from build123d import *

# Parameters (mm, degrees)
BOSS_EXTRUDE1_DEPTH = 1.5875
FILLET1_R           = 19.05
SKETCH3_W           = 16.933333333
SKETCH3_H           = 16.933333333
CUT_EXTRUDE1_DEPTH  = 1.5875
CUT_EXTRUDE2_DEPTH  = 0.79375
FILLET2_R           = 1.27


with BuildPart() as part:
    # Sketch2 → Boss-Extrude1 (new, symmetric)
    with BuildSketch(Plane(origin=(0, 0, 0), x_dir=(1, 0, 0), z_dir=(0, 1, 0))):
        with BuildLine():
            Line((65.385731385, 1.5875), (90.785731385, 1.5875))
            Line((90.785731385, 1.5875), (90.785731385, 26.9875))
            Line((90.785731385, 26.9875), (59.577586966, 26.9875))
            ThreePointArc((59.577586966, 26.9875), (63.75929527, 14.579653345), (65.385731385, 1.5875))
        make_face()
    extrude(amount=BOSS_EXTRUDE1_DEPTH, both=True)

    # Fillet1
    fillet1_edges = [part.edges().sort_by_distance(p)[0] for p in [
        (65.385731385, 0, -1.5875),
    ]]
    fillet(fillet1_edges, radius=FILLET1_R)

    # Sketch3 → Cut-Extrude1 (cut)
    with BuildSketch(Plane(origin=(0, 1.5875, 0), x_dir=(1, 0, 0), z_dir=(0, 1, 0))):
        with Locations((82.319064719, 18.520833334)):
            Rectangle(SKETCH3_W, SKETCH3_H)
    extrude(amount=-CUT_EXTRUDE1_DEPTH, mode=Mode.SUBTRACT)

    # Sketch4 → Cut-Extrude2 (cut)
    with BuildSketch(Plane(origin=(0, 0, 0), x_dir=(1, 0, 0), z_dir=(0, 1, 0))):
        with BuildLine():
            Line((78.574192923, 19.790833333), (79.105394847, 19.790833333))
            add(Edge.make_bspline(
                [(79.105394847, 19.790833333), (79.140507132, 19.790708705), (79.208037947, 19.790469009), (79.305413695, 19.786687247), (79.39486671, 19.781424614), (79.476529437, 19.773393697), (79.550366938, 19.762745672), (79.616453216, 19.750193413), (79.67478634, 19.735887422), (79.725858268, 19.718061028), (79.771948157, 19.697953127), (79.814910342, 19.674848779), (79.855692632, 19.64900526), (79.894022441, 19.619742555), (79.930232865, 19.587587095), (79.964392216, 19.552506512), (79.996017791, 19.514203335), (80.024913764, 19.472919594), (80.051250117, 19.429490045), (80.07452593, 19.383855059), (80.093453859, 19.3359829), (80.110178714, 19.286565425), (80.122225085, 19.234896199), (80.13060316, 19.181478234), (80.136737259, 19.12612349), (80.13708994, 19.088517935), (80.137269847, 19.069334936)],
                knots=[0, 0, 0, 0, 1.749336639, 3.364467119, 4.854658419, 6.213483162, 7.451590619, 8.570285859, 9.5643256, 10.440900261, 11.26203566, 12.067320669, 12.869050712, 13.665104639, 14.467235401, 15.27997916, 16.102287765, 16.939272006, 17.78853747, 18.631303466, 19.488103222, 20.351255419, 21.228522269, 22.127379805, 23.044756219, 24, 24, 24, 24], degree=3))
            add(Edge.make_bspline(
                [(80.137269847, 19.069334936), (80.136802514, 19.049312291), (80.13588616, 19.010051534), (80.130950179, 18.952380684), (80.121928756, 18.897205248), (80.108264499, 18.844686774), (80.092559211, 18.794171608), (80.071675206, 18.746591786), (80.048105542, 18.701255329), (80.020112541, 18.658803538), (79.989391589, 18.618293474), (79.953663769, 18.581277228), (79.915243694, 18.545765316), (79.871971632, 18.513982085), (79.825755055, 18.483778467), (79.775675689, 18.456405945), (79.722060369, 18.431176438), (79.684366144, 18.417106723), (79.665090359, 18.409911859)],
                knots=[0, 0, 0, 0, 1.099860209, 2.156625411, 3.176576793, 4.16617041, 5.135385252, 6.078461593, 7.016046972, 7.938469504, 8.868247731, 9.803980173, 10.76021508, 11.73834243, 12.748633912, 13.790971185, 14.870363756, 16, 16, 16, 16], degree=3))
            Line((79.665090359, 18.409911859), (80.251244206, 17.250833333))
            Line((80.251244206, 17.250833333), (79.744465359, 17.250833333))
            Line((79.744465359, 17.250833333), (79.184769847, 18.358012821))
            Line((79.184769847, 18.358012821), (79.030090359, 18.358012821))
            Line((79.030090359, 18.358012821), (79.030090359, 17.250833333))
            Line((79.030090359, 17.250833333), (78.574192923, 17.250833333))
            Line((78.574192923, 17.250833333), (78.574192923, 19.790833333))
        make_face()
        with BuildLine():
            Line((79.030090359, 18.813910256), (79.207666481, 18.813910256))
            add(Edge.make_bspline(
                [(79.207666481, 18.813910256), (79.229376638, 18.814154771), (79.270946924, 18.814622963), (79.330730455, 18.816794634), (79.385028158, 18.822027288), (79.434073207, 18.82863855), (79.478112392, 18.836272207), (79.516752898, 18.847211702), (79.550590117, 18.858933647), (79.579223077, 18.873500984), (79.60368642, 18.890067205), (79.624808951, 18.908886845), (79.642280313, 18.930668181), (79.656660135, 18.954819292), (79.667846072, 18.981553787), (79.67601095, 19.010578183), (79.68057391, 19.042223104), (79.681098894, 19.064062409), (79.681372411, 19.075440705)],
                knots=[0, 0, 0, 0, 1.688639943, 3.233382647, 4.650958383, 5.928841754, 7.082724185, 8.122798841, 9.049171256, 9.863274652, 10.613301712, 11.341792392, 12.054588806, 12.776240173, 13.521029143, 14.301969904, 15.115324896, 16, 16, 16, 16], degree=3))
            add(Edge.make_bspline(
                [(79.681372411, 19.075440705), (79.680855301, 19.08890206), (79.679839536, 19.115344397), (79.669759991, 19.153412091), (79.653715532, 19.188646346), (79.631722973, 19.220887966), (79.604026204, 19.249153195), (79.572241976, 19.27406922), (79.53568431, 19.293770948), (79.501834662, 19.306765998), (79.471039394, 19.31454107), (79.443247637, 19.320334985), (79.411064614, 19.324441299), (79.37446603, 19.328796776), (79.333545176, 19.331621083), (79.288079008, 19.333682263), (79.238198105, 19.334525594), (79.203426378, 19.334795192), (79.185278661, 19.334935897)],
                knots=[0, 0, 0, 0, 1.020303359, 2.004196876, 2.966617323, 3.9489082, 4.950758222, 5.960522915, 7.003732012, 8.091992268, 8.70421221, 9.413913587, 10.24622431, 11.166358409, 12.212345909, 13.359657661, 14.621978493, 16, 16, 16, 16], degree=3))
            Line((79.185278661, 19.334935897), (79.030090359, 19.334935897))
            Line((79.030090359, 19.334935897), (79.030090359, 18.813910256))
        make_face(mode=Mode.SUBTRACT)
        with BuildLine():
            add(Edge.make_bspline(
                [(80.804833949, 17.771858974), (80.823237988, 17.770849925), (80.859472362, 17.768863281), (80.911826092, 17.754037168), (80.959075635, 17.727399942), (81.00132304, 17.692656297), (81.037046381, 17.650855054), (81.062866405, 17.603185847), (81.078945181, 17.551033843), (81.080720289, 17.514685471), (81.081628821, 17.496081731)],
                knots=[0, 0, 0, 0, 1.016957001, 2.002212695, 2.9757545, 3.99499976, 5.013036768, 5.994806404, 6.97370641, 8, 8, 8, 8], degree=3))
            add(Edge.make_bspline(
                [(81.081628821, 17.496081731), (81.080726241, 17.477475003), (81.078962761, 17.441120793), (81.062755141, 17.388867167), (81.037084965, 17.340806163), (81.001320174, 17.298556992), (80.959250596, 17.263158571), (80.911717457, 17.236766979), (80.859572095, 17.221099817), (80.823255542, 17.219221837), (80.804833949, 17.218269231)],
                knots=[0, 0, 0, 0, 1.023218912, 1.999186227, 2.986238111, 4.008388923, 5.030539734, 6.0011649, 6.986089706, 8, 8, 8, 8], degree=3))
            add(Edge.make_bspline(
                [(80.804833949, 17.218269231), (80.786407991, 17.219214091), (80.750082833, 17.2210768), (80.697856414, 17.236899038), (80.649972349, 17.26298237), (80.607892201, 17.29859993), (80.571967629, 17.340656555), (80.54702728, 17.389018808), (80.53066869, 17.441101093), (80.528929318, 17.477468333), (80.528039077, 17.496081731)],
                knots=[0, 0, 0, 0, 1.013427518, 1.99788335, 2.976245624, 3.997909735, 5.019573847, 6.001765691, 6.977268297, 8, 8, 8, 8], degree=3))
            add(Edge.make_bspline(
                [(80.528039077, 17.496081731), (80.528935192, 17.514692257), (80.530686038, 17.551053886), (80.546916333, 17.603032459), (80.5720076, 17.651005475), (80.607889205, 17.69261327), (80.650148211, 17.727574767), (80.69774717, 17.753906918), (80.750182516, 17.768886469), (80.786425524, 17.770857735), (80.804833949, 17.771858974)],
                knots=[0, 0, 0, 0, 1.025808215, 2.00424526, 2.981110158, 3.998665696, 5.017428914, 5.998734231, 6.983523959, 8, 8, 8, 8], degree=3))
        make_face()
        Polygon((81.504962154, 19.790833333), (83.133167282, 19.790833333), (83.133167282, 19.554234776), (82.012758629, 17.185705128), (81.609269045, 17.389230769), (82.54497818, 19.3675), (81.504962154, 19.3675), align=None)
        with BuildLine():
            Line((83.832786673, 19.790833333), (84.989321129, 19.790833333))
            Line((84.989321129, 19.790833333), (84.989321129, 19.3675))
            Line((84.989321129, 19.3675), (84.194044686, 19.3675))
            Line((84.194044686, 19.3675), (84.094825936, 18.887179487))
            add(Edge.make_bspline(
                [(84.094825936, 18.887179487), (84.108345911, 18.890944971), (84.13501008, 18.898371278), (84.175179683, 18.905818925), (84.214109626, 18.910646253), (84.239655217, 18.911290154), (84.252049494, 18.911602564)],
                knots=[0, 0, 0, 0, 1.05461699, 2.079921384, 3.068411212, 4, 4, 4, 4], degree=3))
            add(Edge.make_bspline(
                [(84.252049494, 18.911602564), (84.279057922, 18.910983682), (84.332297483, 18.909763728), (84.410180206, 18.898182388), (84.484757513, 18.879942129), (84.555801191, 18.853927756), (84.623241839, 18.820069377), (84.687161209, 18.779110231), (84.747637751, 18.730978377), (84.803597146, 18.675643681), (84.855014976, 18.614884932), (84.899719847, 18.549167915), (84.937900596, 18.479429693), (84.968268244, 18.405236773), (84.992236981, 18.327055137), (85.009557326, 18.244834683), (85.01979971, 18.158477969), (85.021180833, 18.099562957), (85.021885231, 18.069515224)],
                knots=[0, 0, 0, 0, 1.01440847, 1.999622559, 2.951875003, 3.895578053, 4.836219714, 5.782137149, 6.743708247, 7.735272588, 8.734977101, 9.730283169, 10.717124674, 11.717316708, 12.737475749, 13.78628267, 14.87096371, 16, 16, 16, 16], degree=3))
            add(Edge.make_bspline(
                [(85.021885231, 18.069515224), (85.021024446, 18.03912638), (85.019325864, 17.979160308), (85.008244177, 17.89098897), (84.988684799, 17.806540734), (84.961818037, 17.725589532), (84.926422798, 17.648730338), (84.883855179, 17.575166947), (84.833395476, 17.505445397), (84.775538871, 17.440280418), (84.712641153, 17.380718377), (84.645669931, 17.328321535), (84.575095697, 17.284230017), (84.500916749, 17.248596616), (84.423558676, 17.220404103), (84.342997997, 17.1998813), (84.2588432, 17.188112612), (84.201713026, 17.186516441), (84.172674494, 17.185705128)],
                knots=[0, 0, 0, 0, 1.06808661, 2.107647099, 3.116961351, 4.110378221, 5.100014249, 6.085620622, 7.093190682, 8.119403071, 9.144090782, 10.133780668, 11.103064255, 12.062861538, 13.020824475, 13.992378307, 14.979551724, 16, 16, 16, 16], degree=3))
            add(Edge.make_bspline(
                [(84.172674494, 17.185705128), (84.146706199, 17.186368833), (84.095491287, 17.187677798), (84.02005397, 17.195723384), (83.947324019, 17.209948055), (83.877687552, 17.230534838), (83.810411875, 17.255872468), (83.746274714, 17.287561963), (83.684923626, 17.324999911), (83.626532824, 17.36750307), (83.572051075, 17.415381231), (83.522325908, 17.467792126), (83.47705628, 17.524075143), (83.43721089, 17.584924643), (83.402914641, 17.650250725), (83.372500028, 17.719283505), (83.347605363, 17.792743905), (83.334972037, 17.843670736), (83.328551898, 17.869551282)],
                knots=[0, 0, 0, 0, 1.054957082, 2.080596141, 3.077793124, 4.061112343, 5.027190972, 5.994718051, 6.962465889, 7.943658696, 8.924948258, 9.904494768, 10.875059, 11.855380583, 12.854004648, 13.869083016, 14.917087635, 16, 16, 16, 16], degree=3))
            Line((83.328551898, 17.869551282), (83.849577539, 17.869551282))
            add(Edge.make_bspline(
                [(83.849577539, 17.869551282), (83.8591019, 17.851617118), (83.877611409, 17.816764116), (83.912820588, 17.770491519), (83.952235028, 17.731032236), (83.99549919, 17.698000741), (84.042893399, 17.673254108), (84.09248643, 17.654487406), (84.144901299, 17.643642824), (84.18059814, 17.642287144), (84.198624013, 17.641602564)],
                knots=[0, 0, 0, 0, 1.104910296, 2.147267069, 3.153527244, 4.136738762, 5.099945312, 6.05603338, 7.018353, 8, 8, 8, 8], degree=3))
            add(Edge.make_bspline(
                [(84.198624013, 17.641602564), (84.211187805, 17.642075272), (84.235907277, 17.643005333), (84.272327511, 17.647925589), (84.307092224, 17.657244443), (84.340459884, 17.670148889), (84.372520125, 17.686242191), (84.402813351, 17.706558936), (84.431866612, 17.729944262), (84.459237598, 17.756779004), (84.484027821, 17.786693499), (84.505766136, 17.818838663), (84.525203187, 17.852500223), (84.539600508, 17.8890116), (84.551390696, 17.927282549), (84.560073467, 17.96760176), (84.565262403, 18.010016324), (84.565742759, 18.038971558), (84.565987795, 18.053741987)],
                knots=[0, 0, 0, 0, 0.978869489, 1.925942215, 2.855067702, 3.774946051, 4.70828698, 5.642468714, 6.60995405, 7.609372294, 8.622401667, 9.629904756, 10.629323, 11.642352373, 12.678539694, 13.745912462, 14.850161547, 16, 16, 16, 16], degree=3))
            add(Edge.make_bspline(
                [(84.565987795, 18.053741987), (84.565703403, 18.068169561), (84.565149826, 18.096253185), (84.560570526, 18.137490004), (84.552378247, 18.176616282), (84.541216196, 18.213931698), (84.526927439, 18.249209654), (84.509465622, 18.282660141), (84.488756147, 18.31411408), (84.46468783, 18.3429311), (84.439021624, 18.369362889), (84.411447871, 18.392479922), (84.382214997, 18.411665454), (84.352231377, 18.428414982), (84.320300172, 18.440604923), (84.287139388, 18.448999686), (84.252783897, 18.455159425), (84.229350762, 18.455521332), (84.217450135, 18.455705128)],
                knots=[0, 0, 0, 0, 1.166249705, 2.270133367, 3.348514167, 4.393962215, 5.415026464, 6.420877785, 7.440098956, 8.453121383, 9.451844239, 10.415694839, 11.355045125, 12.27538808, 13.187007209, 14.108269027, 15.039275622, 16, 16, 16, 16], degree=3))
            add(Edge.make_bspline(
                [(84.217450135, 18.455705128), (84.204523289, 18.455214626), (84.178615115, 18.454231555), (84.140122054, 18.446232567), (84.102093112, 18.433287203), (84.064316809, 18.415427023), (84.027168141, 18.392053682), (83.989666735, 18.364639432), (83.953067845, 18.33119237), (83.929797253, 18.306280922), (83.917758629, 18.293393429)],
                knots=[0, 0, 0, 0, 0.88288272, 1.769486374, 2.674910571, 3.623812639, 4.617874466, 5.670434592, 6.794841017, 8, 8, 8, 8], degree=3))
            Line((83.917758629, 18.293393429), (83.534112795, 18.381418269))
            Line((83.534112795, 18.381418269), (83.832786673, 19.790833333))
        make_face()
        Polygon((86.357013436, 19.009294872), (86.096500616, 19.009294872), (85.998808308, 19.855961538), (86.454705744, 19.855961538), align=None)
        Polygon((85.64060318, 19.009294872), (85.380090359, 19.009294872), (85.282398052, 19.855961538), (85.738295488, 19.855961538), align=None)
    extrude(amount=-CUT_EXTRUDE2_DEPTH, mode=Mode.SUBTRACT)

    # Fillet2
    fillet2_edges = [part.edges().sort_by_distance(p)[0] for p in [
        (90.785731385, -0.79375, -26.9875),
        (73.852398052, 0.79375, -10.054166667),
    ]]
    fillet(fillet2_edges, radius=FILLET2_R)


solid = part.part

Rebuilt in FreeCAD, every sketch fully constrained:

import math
import FreeCAD as App
import Part
import Sketcher
from FreeCAD import Vector
Q = App.Units.Quantity


def edges_at(feature, points):
    """Names of the edges that pass closest to the given points."""
    edges = feature.Shape.Edges
    near = lambda p: min(range(len(edges)), key=lambda i: edges[i].distToShape(Part.Vertex(*p))[0])
    return sorted({f"Edge{near(p) + 1}" for p in points})


def add_polygon(sketch, points):
    """Adds a closed chain of lines whose ends are joined by coincident constraints."""
    first, n = sketch.GeometryCount, len(points)
    for a, b in zip(points, points[1:] + points[:1]):
        sketch.addGeometry(Part.LineSegment(App.Vector(*a, 0), App.Vector(*b, 0)), False)
    for i in range(n):
        sketch.addConstraint(Sketcher.Constraint("Coincident", first + i, 2, first + (i + 1) % n, 1))

doc = App.newDocument("Part")
params = doc.addObject("Spreadsheet::Sheet", "Params")
for row, (alias, value) in enumerate([
    ("sketch1_width", "1 in"),
    ("sketch1_radius", "2.575 in"),
    ("pad1_length", "0.125 in"),
    ("fillet_radius", "0.75 in"),
    ("pocket1_length", "0.0625 in"),
    ("sketch3_height", "0.1 in"),
    ("pocket2_length", "0.03125 in"),
    ("fillet2_radius", "0.05 in"),
], start=1):
    params.set(f"A{row}", alias)
    params.set(f"B{row}", "=" + value)
    params.setAlias(f"B{row}", alias)

body = doc.addObject("PartDesign::Body", "Body")

sketch1 = body.newObject("Sketcher::SketchObject", "Sketch")
sketch1.AttachmentSupport = (doc.getObject("XZ_Plane"), [""])
sketch1.MapMode = "FlatFace"
sketch1.addGeometry(Part.LineSegment(Vector(65.385731, -1.5875, 0), Vector(90.785731, -1.5875, 0)), False)
sketch1.addGeometry(Part.LineSegment(Vector(90.785731, -1.5875, 0), Vector(90.785731, -26.9875, 0)), False)
sketch1.addGeometry(Part.LineSegment(Vector(90.785731, -26.9875, 0), Vector(59.577587, -26.9875, 0)), False)
sketch1.addGeometry(Part.ArcOfCircle(Part.Circle(Vector(0, 0, 0), Vector(0, 0, 1), 65.405), math.radians(-24.369611), math.radians(-1.390811)), False)
sketch1.addConstraint(Sketcher.Constraint("Coincident", 0, 2, 1, 1))
sketch1.addConstraint(Sketcher.Constraint("Coincident", 1, 2, 2, 1))
sketch1.addConstraint(Sketcher.Constraint("Coincident", 2, 2, 3, 1))
sketch1.addConstraint(Sketcher.Constraint("Coincident", 3, 2, 0, 1))
sketch1.addConstraint(Sketcher.Constraint("Horizontal", 0))
sketch1.addConstraint(Sketcher.Constraint("Vertical", 1))
sketch1.addConstraint(Sketcher.Constraint("Horizontal", 2))
sketch1.addConstraint(Sketcher.Constraint("Coincident", 3, 3, -1, 1))
sketch1.addConstraint(Sketcher.Constraint("Equal", 0, 1))
sketch1.addConstraint(Sketcher.Constraint("DistanceX", 0, 1, 0, 2, Q("1 in")))
sketch1.addConstraint(Sketcher.Constraint("Radius", 3, Q("2.575 in")))
sketch1.addConstraint(Sketcher.Constraint("DistanceY", 0, 2, -1, 1, Q("0.0625 in")))
sketch1.setExpression("Constraints[9]", "Params.sketch1_width")
sketch1.setExpression("Constraints[10]", "Params.sketch1_radius")
pad1 = body.newObject("PartDesign::Pad", "Pad")
pad1.Profile = sketch1
pad1.setExpression("Length", "Params.pad1_length")
pad1.Midplane = True
doc.recompute()

fillet = body.newObject("PartDesign::Fillet", "Fillet")
fillet.Base = (pad1, edges_at(pad1, [(65.386, 0, -1.587)]))
fillet.setExpression("Radius", "Params.fillet_radius")

sketch2 = body.newObject("Sketcher::SketchObject", "Sketch001")
sketch2.AttachmentSupport = (doc.getObject("XZ_Plane"), [""])
sketch2.MapMode = "FlatFace"
sketch2.AttachmentOffset = App.Placement(Vector(0, 0, -0.0625 * 25.4), App.Rotation())
add_polygon(sketch2, [(73.852398, -26.9875), (73.852398, -10.054167), (90.785731, -10.054167), (90.785731, -26.9875)])
sketch2.addConstraint(Sketcher.Constraint("Vertical", 0))
sketch2.addConstraint(Sketcher.Constraint("Horizontal", 1))
sketch2.addConstraint(Sketcher.Constraint("Vertical", 2))
sketch2.addConstraint(Sketcher.Constraint("Horizontal", 3))
sketch2.addConstraint(Sketcher.Constraint("Equal", 3, 0))
sketch2.addConstraint(Sketcher.Constraint("DistanceY", 2, 2, -1, 1, Q("1.0625 in")))
sketch2.addConstraint(Sketcher.Constraint("DistanceX", -1, 1, 0, 2, 73.852398))
sketch2.addConstraint(Sketcher.Constraint("DistanceX", 1, 1, 1, 2, 16.933333))
pocket1 = body.newObject("PartDesign::Pocket", "Pocket")
pocket1.Profile = sketch2
pocket1.setExpression("Length", "Params.pocket1_length")
pocket1.Reversed = True

sketch3 = body.newObject("Sketcher::SketchObject", "Sketch002")
sketch3.AttachmentSupport = (doc.getObject("XZ_Plane"), [""])
sketch3.MapMode = "FlatFace"
sketch3.addGeometry(Part.LineSegment(Vector(79.105395, -19.790833, 0), Vector(78.574193, -19.790833, 0)), False)
sketch3.addGeometry(Part.LineSegment(Vector(78.574193, -19.790833, 0), Vector(78.574193, -17.250833, 0)), False)
sketch3.addGeometry(Part.LineSegment(Vector(78.574193, -17.250833, 0), Vector(79.03009, -17.250833, 0)), False)
sketch3.addGeometry(Part.LineSegment(Vector(79.03009, -17.250833, 0), Vector(79.03009, -18.358013, 0)), False)
sketch3.addGeometry(Part.LineSegment(Vector(79.03009, -18.358013, 0), Vector(79.18477, -18.358013, 0)), False)
sketch3.addGeometry(Part.LineSegment(Vector(79.18477, -18.358013, 0), Vector(79.744465, -17.250833, 0)), False)
sketch3.addGeometry(Part.LineSegment(Vector(79.744465, -17.250833, 0), Vector(80.251244, -17.250833, 0)), False)
sketch3.addGeometry(Part.LineSegment(Vector(80.251244, -17.250833, 0), Vector(79.66509, -18.409912, 0)), False)
sketch3.addGeometry(Part.BSplineCurve([Vector(80.13727, -19.069335, 0), Vector(80.136803, -19.049312, 0), Vector(80.135886, -19.010052, 0), Vector(80.13095, -18.952381, 0), Vector(80.121929, -18.897205, 0), Vector(80.108264, -18.844687, 0), Vector(80.092559, -18.794172, 0), Vector(80.071675, -18.746592, 0), Vector(80.048106, -18.701255, 0), Vector(80.020113, -18.658804, 0), Vector(79.989392, -18.618293, 0), Vector(79.953664, -18.581277, 0), Vector(79.915244, -18.545765, 0), Vector(79.871972, -18.513982, 0), Vector(79.825755, -18.483778, 0), Vector(79.775676, -18.456406, 0), Vector(79.72206, -18.431176, 0), Vector(79.684366, -18.417107, 0), Vector(79.66509, -18.409912, 0)], [4, 1, 1, 1, 1, 1, 1, 1, 1, 1, 1, 1, 1, 1, 1, 1, 4], [0, 1.099860209, 2.156625411, 3.176576793, 4.16617041, 5.135385252, 6.078461593, 7.016046972, 7.938469504, 8.868247731, 9.803980173, 10.76021508, 11.73834243, 12.748633912, 13.790971185, 14.870363756, 16], False, 3, [1, 1, 1, 1, 1, 1, 1, 1, 1, 1, 1, 1, 1, 1, 1, 1, 1, 1, 1], False), False)
sketch3.addGeometry(Part.BSplineCurve([Vector(79.105395, -19.790833, 0), Vector(79.140507, -19.790709, 0), Vector(79.208038, -19.790469, 0), Vector(79.305414, -19.786687, 0), Vector(79.394867, -19.781425, 0), Vector(79.476529, -19.773394, 0), Vector(79.550367, -19.762746, 0), Vector(79.616453, -19.750193, 0), Vector(79.674786, -19.735887, 0), Vector(79.725858, -19.718061, 0), Vector(79.771948, -19.697953, 0), Vector(79.81491, -19.674849, 0), Vector(79.855693, -19.649005, 0), Vector(79.894022, -19.619743, 0), Vector(79.930233, -19.587587, 0), Vector(79.964392, -19.552507, 0), Vector(79.996018, -19.514203, 0), Vector(80.024914, -19.47292, 0), Vector(80.05125, -19.42949, 0), Vector(80.074526, -19.383855, 0), Vector(80.093454, -19.335983, 0), Vector(80.110179, -19.286565, 0), Vector(80.122225, -19.234896, 0), Vector(80.130603, -19.181478, 0), Vector(80.136737, -19.126123, 0), Vector(80.13709, -19.088518, 0), Vector(80.13727, -19.069335, 0)], [4, 1, 1, 1, 1, 1, 1, 1, 1, 1, 1, 1, 1, 1, 1, 1, 1, 1, 1, 1, 1, 1, 1, 1, 4], [0, 1.749336639, 3.364467119, 4.854658419, 6.213483162, 7.451590619, 8.570285859, 9.5643256, 10.440900261, 11.26203566, 12.067320669, 12.869050712, 13.665104639, 14.467235401, 15.27997916, 16.102287765, 16.939272006, 17.78853747, 18.631303466, 19.488103222, 20.351255419, 21.228522269, 22.127379805, 23.044756219, 24], False, 3, [1, 1, 1, 1, 1, 1, 1, 1, 1, 1, 1, 1, 1, 1, 1, 1, 1, 1, 1, 1, 1, 1, 1, 1, 1, 1, 1], False), False)
sketch3.addGeometry(Part.LineSegment(Vector(79.03009, -18.81391, 0), Vector(79.03009, -19.334936, 0)), False)
sketch3.addGeometry(Part.LineSegment(Vector(79.03009, -19.334936, 0), Vector(79.185279, -19.334936, 0)), False)
sketch3.addGeometry(Part.BSplineCurve([Vector(79.681372, -19.075441, 0), Vector(79.680855, -19.088902, 0), Vector(79.67984, -19.115344, 0), Vector(79.66976, -19.153412, 0), Vector(79.653716, -19.188646, 0), Vector(79.631723, -19.220888, 0), Vector(79.604026, -19.249153, 0), Vector(79.572242, -19.274069, 0), Vector(79.535684, -19.293771, 0), Vector(79.501835, -19.306766, 0), Vector(79.471039, -19.314541, 0), Vector(79.443248, -19.320335, 0), Vector(79.411065, -19.324441, 0), Vector(79.374466, -19.328797, 0), Vector(79.333545, -19.331621, 0), Vector(79.288079, -19.333682, 0), Vector(79.238198, -19.334526, 0), Vector(79.203426, -19.334795, 0), Vector(79.185279, -19.334936, 0)], [4, 1, 1, 1, 1, 1, 1, 1, 1, 1, 1, 1, 1, 1, 1, 1, 4], [0, 1.020303359, 2.004196876, 2.966617323, 3.9489082, 4.950758222, 5.960522915, 7.003732012, 8.091992268, 8.70421221, 9.413913587, 10.24622431, 11.166358409, 12.212345909, 13.359657661, 14.621978493, 16], False, 3, [1, 1, 1, 1, 1, 1, 1, 1, 1, 1, 1, 1, 1, 1, 1, 1, 1, 1, 1], False), False)
sketch3.addGeometry(Part.BSplineCurve([Vector(79.207666, -18.81391, 0), Vector(79.229377, -18.814155, 0), Vector(79.270947, -18.814623, 0), Vector(79.33073, -18.816795, 0), Vector(79.385028, -18.822027, 0), Vector(79.434073, -18.828639, 0), Vector(79.478112, -18.836272, 0), Vector(79.516753, -18.847212, 0), Vector(79.55059, -18.858934, 0), Vector(79.579223, -18.873501, 0), Vector(79.603686, -18.890067, 0), Vector(79.624809, -18.908887, 0), Vector(79.64228, -18.930668, 0), Vector(79.65666, -18.954819, 0), Vector(79.667846, -18.981554, 0), Vector(79.676011, -19.010578, 0), Vector(79.680574, -19.042223, 0), Vector(79.681099, -19.064062, 0), Vector(79.681372, -19.075441, 0)], [4, 1, 1, 1, 1, 1, 1, 1, 1, 1, 1, 1, 1, 1, 1, 1, 4], [0, 1.688639943, 3.233382647, 4.650958383, 5.928841754, 7.082724185, 8.122798841, 9.049171256, 9.863274652, 10.613301712, 11.341792392, 12.054588806, 12.776240173, 13.521029143, 14.301969904, 15.115324896, 16], False, 3, [1, 1, 1, 1, 1, 1, 1, 1, 1, 1, 1, 1, 1, 1, 1, 1, 1, 1, 1], False), False)
sketch3.addGeometry(Part.LineSegment(Vector(79.207666, -18.81391, 0), Vector(79.03009, -18.81391, 0)), False)
sketch3.addGeometry(Part.BSplineCurve([Vector(80.804834, -17.771859, 0), Vector(80.823238, -17.77085, 0), Vector(80.859472, -17.768863, 0), Vector(80.911826, -17.754037, 0), Vector(80.959076, -17.7274, 0), Vector(81.001323, -17.692656, 0), Vector(81.037046, -17.650855, 0), Vector(81.062866, -17.603186, 0), Vector(81.078945, -17.551034, 0), Vector(81.08072, -17.514685, 0), Vector(81.081629, -17.496082, 0)], [4, 1, 1, 1, 1, 1, 1, 1, 4], [0, 1.016957001, 2.002212695, 2.9757545, 3.99499976, 5.013036768, 5.994806404, 6.97370641, 8], False, 3, [1, 1, 1, 1, 1, 1, 1, 1, 1, 1, 1], False), False)
sketch3.addGeometry(Part.BSplineCurve([Vector(80.528039, -17.496082, 0), Vector(80.528935, -17.514692, 0), Vector(80.530686, -17.551054, 0), Vector(80.546916, -17.603032, 0), Vector(80.572008, -17.651005, 0), Vector(80.607889, -17.692613, 0), Vector(80.650148, -17.727575, 0), Vector(80.697747, -17.753907, 0), Vector(80.750183, -17.768886, 0), Vector(80.786426, -17.770858, 0), Vector(80.804834, -17.771859, 0)], [4, 1, 1, 1, 1, 1, 1, 1, 4], [0, 1.025808215, 2.00424526, 2.981110158, 3.998665696, 5.017428914, 5.998734231, 6.983523959, 8], False, 3, [1, 1, 1, 1, 1, 1, 1, 1, 1, 1, 1], False), False)
sketch3.addGeometry(Part.BSplineCurve([Vector(80.804834, -17.218269, 0), Vector(80.786408, -17.219214, 0), Vector(80.750083, -17.221077, 0), Vector(80.697856, -17.236899, 0), Vector(80.649972, -17.262982, 0), Vector(80.607892, -17.2986, 0), Vector(80.571968, -17.340657, 0), Vector(80.547027, -17.389019, 0), Vector(80.530669, -17.441101, 0), Vector(80.528929, -17.477468, 0), Vector(80.528039, -17.496082, 0)], [4, 1, 1, 1, 1, 1, 1, 1, 4], [0, 1.013427518, 1.99788335, 2.976245624, 3.997909735, 5.019573847, 6.001765691, 6.977268297, 8], False, 3, [1, 1, 1, 1, 1, 1, 1, 1, 1, 1, 1], False), False)
sketch3.addGeometry(Part.BSplineCurve([Vector(81.081629, -17.496082, 0), Vector(81.080726, -17.477475, 0), Vector(81.078963, -17.441121, 0), Vector(81.062755, -17.388867, 0), Vector(81.037085, -17.340806, 0), Vector(81.00132, -17.298557, 0), Vector(80.959251, -17.263159, 0), Vector(80.911717, -17.236767, 0), Vector(80.859572, -17.2211, 0), Vector(80.823256, -17.219222, 0), Vector(80.804834, -17.218269, 0)], [4, 1, 1, 1, 1, 1, 1, 1, 4], [0, 1.023218912, 1.999186227, 2.986238111, 4.008388923, 5.030539734, 6.0011649, 6.986089706, 8], False, 3, [1, 1, 1, 1, 1, 1, 1, 1, 1, 1, 1], False), False)
add_polygon(sketch3, [(83.133167, -19.790833), (81.504962, -19.790833), (81.504962, -19.3675), (82.544978, -19.3675), (81.609269, -17.389231), (82.012759, -17.185705), (83.133167, -19.554235)])
sketch3.addGeometry(Part.LineSegment(Vector(84.989321, -19.790833, 0), Vector(83.832787, -19.790833, 0)), False)
sketch3.addGeometry(Part.LineSegment(Vector(83.832787, -19.790833, 0), Vector(83.534113, -18.381418, 0)), False)
sketch3.addGeometry(Part.LineSegment(Vector(83.534113, -18.381418, 0), Vector(83.917759, -18.293393, 0)), False)
sketch3.addGeometry(Part.BSplineCurve([Vector(84.21745, -18.455705, 0), Vector(84.204523, -18.455215, 0), Vector(84.178615, -18.454232, 0), Vector(84.140122, -18.446233, 0), Vector(84.102093, -18.433287, 0), Vector(84.064317, -18.415427, 0), Vector(84.027168, -18.392054, 0), Vector(83.989667, -18.364639, 0), Vector(83.953068, -18.331192, 0), Vector(83.929797, -18.306281, 0), Vector(83.917759, -18.293393, 0)], [4, 1, 1, 1, 1, 1, 1, 1, 4], [0, 0.88288272, 1.769486374, 2.674910571, 3.623812639, 4.617874466, 5.670434592, 6.794841017, 8], False, 3, [1, 1, 1, 1, 1, 1, 1, 1, 1, 1, 1], False), False)
sketch3.addGeometry(Part.BSplineCurve([Vector(84.565988, -18.053742, 0), Vector(84.565703, -18.06817, 0), Vector(84.56515, -18.096253, 0), Vector(84.560571, -18.13749, 0), Vector(84.552378, -18.176616, 0), Vector(84.541216, -18.213932, 0), Vector(84.526927, -18.24921, 0), Vector(84.509466, -18.28266, 0), Vector(84.488756, -18.314114, 0), Vector(84.464688, -18.342931, 0), Vector(84.439022, -18.369363, 0), Vector(84.411448, -18.39248, 0), Vector(84.382215, -18.411665, 0), Vector(84.352231, -18.428415, 0), Vector(84.3203, -18.440605, 0), Vector(84.287139, -18.449, 0), Vector(84.252784, -18.455159, 0), Vector(84.229351, -18.455521, 0), Vector(84.21745, -18.455705, 0)], [4, 1, 1, 1, 1, 1, 1, 1, 1, 1, 1, 1, 1, 1, 1, 1, 4], [0, 1.166249705, 2.270133367, 3.348514167, 4.393962215, 5.415026464, 6.420877785, 7.440098956, 8.453121383, 9.451844239, 10.415694839, 11.355045125, 12.27538808, 13.187007209, 14.108269027, 15.039275622, 16], False, 3, [1, 1, 1, 1, 1, 1, 1, 1, 1, 1, 1, 1, 1, 1, 1, 1, 1, 1, 1], False), False)
sketch3.addGeometry(Part.BSplineCurve([Vector(84.198624, -17.641603, 0), Vector(84.211188, -17.642075, 0), Vector(84.235907, -17.643005, 0), Vector(84.272328, -17.647926, 0), Vector(84.307092, -17.657244, 0), Vector(84.34046, -17.670149, 0), Vector(84.37252, -17.686242, 0), Vector(84.402813, -17.706559, 0), Vector(84.431867, -17.729944, 0), Vector(84.459238, -17.756779, 0), Vector(84.484028, -17.786693, 0), Vector(84.505766, -17.818839, 0), Vector(84.525203, -17.8525, 0), Vector(84.539601, -17.889012, 0), Vector(84.551391, -17.927283, 0), Vector(84.560073, -17.967602, 0), Vector(84.565262, -18.010016, 0), Vector(84.565743, -18.038972, 0), Vector(84.565988, -18.053742, 0)], [4, 1, 1, 1, 1, 1, 1, 1, 1, 1, 1, 1, 1, 1, 1, 1, 4], [0, 0.978869489, 1.925942215, 2.855067702, 3.774946051, 4.70828698, 5.642468714, 6.60995405, 7.609372294, 8.622401667, 9.629904756, 10.629323, 11.642352373, 12.678539694, 13.745912462, 14.850161547, 16], False, 3, [1, 1, 1, 1, 1, 1, 1, 1, 1, 1, 1, 1, 1, 1, 1, 1, 1, 1, 1], False), False)
sketch3.addGeometry(Part.BSplineCurve([Vector(83.849578, -17.869551, 0), Vector(83.859102, -17.851617, 0), Vector(83.877611, -17.816764, 0), Vector(83.912821, -17.770492, 0), Vector(83.952235, -17.731032, 0), Vector(83.995499, -17.698001, 0), Vector(84.042893, -17.673254, 0), Vector(84.092486, -17.654487, 0), Vector(84.144901, -17.643643, 0), Vector(84.180598, -17.642287, 0), Vector(84.198624, -17.641603, 0)], [4, 1, 1, 1, 1, 1, 1, 1, 4], [0, 1.104910296, 2.147267069, 3.153527244, 4.136738762, 5.099945312, 6.05603338, 7.018353, 8], False, 3, [1, 1, 1, 1, 1, 1, 1, 1, 1, 1, 1], False), False)
sketch3.addGeometry(Part.LineSegment(Vector(83.849578, -17.869551, 0), Vector(83.328552, -17.869551, 0)), False)
sketch3.addGeometry(Part.BSplineCurve([Vector(84.172674, -17.185705, 0), Vector(84.146706, -17.186369, 0), Vector(84.095491, -17.187678, 0), Vector(84.020054, -17.195723, 0), Vector(83.947324, -17.209948, 0), Vector(83.877688, -17.230535, 0), Vector(83.810412, -17.255872, 0), Vector(83.746275, -17.287562, 0), Vector(83.684924, -17.325, 0), Vector(83.626533, -17.367503, 0), Vector(83.572051, -17.415381, 0), Vector(83.522326, -17.467792, 0), Vector(83.477056, -17.524075, 0), Vector(83.437211, -17.584925, 0), Vector(83.402915, -17.650251, 0), Vector(83.3725, -17.719284, 0), Vector(83.347605, -17.792744, 0), Vector(83.334972, -17.843671, 0), Vector(83.328552, -17.869551, 0)], [4, 1, 1, 1, 1, 1, 1, 1, 1, 1, 1, 1, 1, 1, 1, 1, 4], [0, 1.054957082, 2.080596141, 3.077793124, 4.061112343, 5.027190972, 5.994718051, 6.962465889, 7.943658696, 8.924948258, 9.904494768, 10.875059, 11.855380583, 12.854004648, 13.869083016, 14.917087635, 16], False, 3, [1, 1, 1, 1, 1, 1, 1, 1, 1, 1, 1, 1, 1, 1, 1, 1, 1, 1, 1], False), False)
sketch3.addGeometry(Part.BSplineCurve([Vector(85.021885, -18.069515, 0), Vector(85.021024, -18.039126, 0), Vector(85.019326, -17.97916, 0), Vector(85.008244, -17.890989, 0), Vector(84.988685, -17.806541, 0), Vector(84.961818, -17.72559, 0), Vector(84.926423, -17.64873, 0), Vector(84.883855, -17.575167, 0), Vector(84.833395, -17.505445, 0), Vector(84.775539, -17.44028, 0), Vector(84.712641, -17.380718, 0), Vector(84.64567, -17.328322, 0), Vector(84.575096, -17.28423, 0), Vector(84.500917, -17.248597, 0), Vector(84.423559, -17.220404, 0), Vector(84.342998, -17.199881, 0), Vector(84.258843, -17.188113, 0), Vector(84.201713, -17.186516, 0), Vector(84.172674, -17.185705, 0)], [4, 1, 1, 1, 1, 1, 1, 1, 1, 1, 1, 1, 1, 1, 1, 1, 4], [0, 1.06808661, 2.107647099, 3.116961351, 4.110378221, 5.100014249, 6.085620622, 7.093190682, 8.119403071, 9.144090782, 10.133780668, 11.103064255, 12.062861538, 13.020824475, 13.992378307, 14.979551724, 16], False, 3, [1, 1, 1, 1, 1, 1, 1, 1, 1, 1, 1, 1, 1, 1, 1, 1, 1, 1, 1], False), False)
sketch3.addGeometry(Part.BSplineCurve([Vector(84.252049, -18.911603, 0), Vector(84.279058, -18.910984, 0), Vector(84.332297, -18.909764, 0), Vector(84.41018, -18.898182, 0), Vector(84.484758, -18.879942, 0), Vector(84.555801, -18.853928, 0), Vector(84.623242, -18.820069, 0), Vector(84.687161, -18.77911, 0), Vector(84.747638, -18.730978, 0), Vector(84.803597, -18.675644, 0), Vector(84.855015, -18.614885, 0), Vector(84.89972, -18.549168, 0), Vector(84.937901, -18.47943, 0), Vector(84.968268, -18.405237, 0), Vector(84.992237, -18.327055, 0), Vector(85.009557, -18.244835, 0), Vector(85.0198, -18.158478, 0), Vector(85.021181, -18.099563, 0), Vector(85.021885, -18.069515, 0)], [4, 1, 1, 1, 1, 1, 1, 1, 1, 1, 1, 1, 1, 1, 1, 1, 4], [0, 1.01440847, 1.999622559, 2.951875003, 3.895578053, 4.836219714, 5.782137149, 6.743708247, 7.735272588, 8.734977101, 9.730283169, 10.717124674, 11.717316708, 12.737475749, 13.78628267, 14.87096371, 16], False, 3, [1, 1, 1, 1, 1, 1, 1, 1, 1, 1, 1, 1, 1, 1, 1, 1, 1, 1, 1], False), False)
sketch3.addGeometry(Part.BSplineCurve([Vector(84.094826, -18.887179, 0), Vector(84.108346, -18.890945, 0), Vector(84.13501, -18.898371, 0), Vector(84.17518, -18.905819, 0), Vector(84.21411, -18.910646, 0), Vector(84.239655, -18.91129, 0), Vector(84.252049, -18.911603, 0)], [4, 1, 1, 1, 4], [0, 1.05461699, 2.079921384, 3.068411212, 4], False, 3, [1, 1, 1, 1, 1, 1, 1], False), False)
sketch3.addGeometry(Part.LineSegment(Vector(84.094826, -18.887179, 0), Vector(84.194045, -19.3675, 0)), False)
sketch3.addGeometry(Part.LineSegment(Vector(84.194045, -19.3675, 0), Vector(84.989321, -19.3675, 0)), False)
sketch3.addGeometry(Part.LineSegment(Vector(84.989321, -19.3675, 0), Vector(84.989321, -19.790833, 0)), False)
add_polygon(sketch3, [(86.096501, -19.009295), (86.357013, -19.009295), (86.454706, -19.855962), (85.998808, -19.855962)])
add_polygon(sketch3, [(85.38009, -19.009295), (85.640603, -19.009295), (85.738295, -19.855962), (85.282398, -19.855962)])
sketch3.addConstraint(Sketcher.Constraint("Block", 8))
sketch3.addConstraint(Sketcher.Constraint("Block", 9))
sketch3.addConstraint(Sketcher.Constraint("Block", 12))
sketch3.addConstraint(Sketcher.Constraint("Block", 13))
sketch3.addConstraint(Sketcher.Constraint("Block", 15))
sketch3.addConstraint(Sketcher.Constraint("Block", 16))
sketch3.addConstraint(Sketcher.Constraint("Block", 17))
sketch3.addConstraint(Sketcher.Constraint("Block", 18))
sketch3.addConstraint(Sketcher.Constraint("Block", 29))
sketch3.addConstraint(Sketcher.Constraint("Block", 30))
sketch3.addConstraint(Sketcher.Constraint("Block", 31))
sketch3.addConstraint(Sketcher.Constraint("Block", 32))
sketch3.addConstraint(Sketcher.Constraint("Block", 34))
sketch3.addConstraint(Sketcher.Constraint("Block", 35))
sketch3.addConstraint(Sketcher.Constraint("Block", 36))
sketch3.addConstraint(Sketcher.Constraint("Block", 37))
sketch3.addConstraint(Sketcher.Constraint("Coincident", 0, 2, 1, 1))
sketch3.addConstraint(Sketcher.Constraint("Coincident", 1, 2, 2, 1))
sketch3.addConstraint(Sketcher.Constraint("Coincident", 2, 2, 3, 1))
sketch3.addConstraint(Sketcher.Constraint("Coincident", 3, 2, 4, 1))
sketch3.addConstraint(Sketcher.Constraint("Coincident", 4, 2, 5, 1))
sketch3.addConstraint(Sketcher.Constraint("Coincident", 5, 2, 6, 1))
sketch3.addConstraint(Sketcher.Constraint("Coincident", 6, 2, 7, 1))
sketch3.addConstraint(Sketcher.Constraint("Coincident", 7, 2, 8, 2))
sketch3.addConstraint(Sketcher.Constraint("Coincident", 9, 1, 0, 1))
sketch3.addConstraint(Sketcher.Constraint("Coincident", 10, 2, 11, 1))
sketch3.addConstraint(Sketcher.Constraint("Coincident", 11, 2, 12, 2))
sketch3.addConstraint(Sketcher.Constraint("Coincident", 13, 1, 14, 1))
sketch3.addConstraint(Sketcher.Constraint("Coincident", 14, 2, 10, 1))
sketch3.addConstraint(Sketcher.Constraint("Coincident", 26, 2, 27, 1))
sketch3.addConstraint(Sketcher.Constraint("Coincident", 27, 2, 28, 1))
sketch3.addConstraint(Sketcher.Constraint("Coincident", 28, 2, 29, 2))
sketch3.addConstraint(Sketcher.Constraint("Coincident", 32, 1, 33, 1))
sketch3.addConstraint(Sketcher.Constraint("Coincident", 33, 2, 34, 2))
sketch3.addConstraint(Sketcher.Constraint("Coincident", 37, 1, 38, 1))
sketch3.addConstraint(Sketcher.Constraint("Coincident", 38, 2, 39, 1))
sketch3.addConstraint(Sketcher.Constraint("Coincident", 39, 2, 40, 1))
sketch3.addConstraint(Sketcher.Constraint("Coincident", 40, 2, 26, 1))
sketch3.addConstraint(Sketcher.Constraint("Horizontal", 0))
sketch3.addConstraint(Sketcher.Constraint("Vertical", 1))
sketch3.addConstraint(Sketcher.Constraint("Horizontal", 2))
sketch3.addConstraint(Sketcher.Constraint("Vertical", 3))
sketch3.addConstraint(Sketcher.Constraint("Horizontal", 4))
sketch3.addConstraint(Sketcher.Constraint("Horizontal", 6))
sketch3.addConstraint(Sketcher.Constraint("Vertical", 10))
sketch3.addConstraint(Sketcher.Constraint("Horizontal", 11))
sketch3.addConstraint(Sketcher.Constraint("Horizontal", 14))
sketch3.addConstraint(Sketcher.Constraint("Horizontal", 19))
sketch3.addConstraint(Sketcher.Constraint("Vertical", 20))
sketch3.addConstraint(Sketcher.Constraint("Horizontal", 21))
sketch3.addConstraint(Sketcher.Constraint("Vertical", 25))
sketch3.addConstraint(Sketcher.Constraint("Horizontal", 26))
sketch3.addConstraint(Sketcher.Constraint("Horizontal", 39))
sketch3.addConstraint(Sketcher.Constraint("Vertical", 40))
sketch3.addConstraint(Sketcher.Constraint("Horizontal", 41))
sketch3.addConstraint(Sketcher.Constraint("Horizontal", 43))
sketch3.addConstraint(Sketcher.Constraint("Horizontal", 45))
sketch3.addConstraint(Sketcher.Constraint("Horizontal", 47))
sketch3.addConstraint(Sketcher.Constraint("DistanceY", 1, 1, 1, 2, Q("0.1 in")))
sketch3.addConstraint(Sketcher.Constraint("DistanceY", 0, 2, 5, 2, Q("0.1 in")))
sketch3.addConstraint(Sketcher.Constraint("DistanceX", 3, 2, 7, 2, Q("0.025 in")))
sketch3.addConstraint(Sketcher.Constraint("DistanceX", 10, 2, 7, 2, Q("0.025 in")))
sketch3.addConstraint(Sketcher.Constraint("DistanceX", 0, 2, 0, 1, 0.531202))
sketch3.addConstraint(Sketcher.Constraint("DistanceY", 25, 2, 25, 1, 0.236599))
sketch3.addConstraint(Sketcher.Constraint("DistanceY", 20, 2, -1, 1, Q("0.7625 in")))
sketch3.addConstraint(Sketcher.Constraint("DistanceY", 38, 2, -1, 1, Q("0.7625 in")))
sketch3.addConstraint(Sketcher.Constraint("Distance", 22, 2.188401))
sketch3.addConstraint(Sketcher.Constraint("DistanceX", 4, 1, 4, 2, 0.154679))
sketch3.addConstraint(Sketcher.Constraint("DistanceX", 6, 1, 6, 2, 0.506779))
sketch3.addConstraint(Sketcher.Constraint("DistanceY", 3, 2, 3, 1, 1.107179))
sketch3.addConstraint(Sketcher.Constraint("DistanceX", -1, 1, 44, 2, 86.096501))
sketch3.addConstraint(Sketcher.Constraint("DistanceX", -1, 1, 47, 2, 85.282398))
sketch3.addConstraint(Sketcher.Constraint("DistanceX", 11, 2, 21, 2, 3.3597))
sketch3.addConstraint(Sketcher.Constraint("DistanceX", 22, 2, 24, 2, 1.523898))
sketch3.addConstraint(Sketcher.Constraint("DistanceY", 26, 2, 24, 2, 0.236599))
sketch3.addConstraint(Sketcher.Constraint("DistanceY", 41, 2, 28, 2, 0.715901))
sketch3.addConstraint(Sketcher.Constraint("Distance", 7, 1.298861))
sketch3.addConstraint(Sketcher.Constraint("Distance", 24, 2.620162))
sketch3.addConstraint(Sketcher.Constraint("Distance", 38, 0.490461))
sketch3.addConstraint(Sketcher.Constraint("DistanceX", 19, 2, 19, 1, 1.628205))
sketch3.addConstraint(Sketcher.Constraint("DistanceX", 21, 1, 21, 2, 1.040016))
sketch3.addConstraint(Sketcher.Constraint("DistanceX", 26, 2, 26, 1, 1.156534))
sketch3.addConstraint(Sketcher.Constraint("DistanceX", 39, 1, 39, 2, 0.795276))
sketch3.addConstraint(Sketcher.Constraint("DistanceX", 41, 1, 41, 2, 0.260513))
sketch3.addConstraint(Sketcher.Constraint("DistanceX", 43, 2, 43, 1, 0.455897))
sketch3.addConstraint(Sketcher.Constraint("DistanceX", 45, 1, 45, 2, 0.260513))
sketch3.addConstraint(Sketcher.Constraint("DistanceX", 47, 2, 47, 1, 0.455897))
sketch3.addConstraint(Sketcher.Constraint("DistanceY", 20, 1, 20, 2, 0.423333))
sketch3.addConstraint(Sketcher.Constraint("DistanceX", -1, 1, 23, 2, 82.012759))
sketch3.addConstraint(Sketcher.Constraint("DistanceY", 27, 2, -1, 1, 18.381418))
sketch3.addConstraint(Sketcher.Constraint("DistanceY", 42, 2, -1, 1, 19.855962))
sketch3.addConstraint(Sketcher.Constraint("DistanceX", -1, 1, 43, 2, 85.998808))
sketch3.addConstraint(Sketcher.Constraint("DistanceY", 46, 2, -1, 1, 19.855962))
sketch3.addConstraint(Sketcher.Constraint("DistanceX", -1, 1, 48, 2, 85.38009))
sketch3.addConstraint(Sketcher.Constraint("DistanceX", 33, 2, 27, 2, 0.205561))
sketch3.addConstraint(Sketcher.Constraint("DistanceY", 40, 2, 45, 2, 0.781538))
sketch3.setExpression("Constraints[73]", "Params.sketch3_height")
pocket2 = body.newObject("PartDesign::Pocket", "Pocket001")
pocket2.Profile = sketch3
pocket2.setExpression("Length", "Params.pocket2_length")
pocket2.Reversed = True
doc.recompute()

fillet2 = body.newObject("PartDesign::Fillet", "Fillet001")
fillet2.Base = (pocket2, edges_at(pocket2, [(90.786, -0.794, -26.988), (73.852, 0.794, -10.054)]))
fillet2.setExpression("Radius", "Params.fillet2_radius")

doc.recompute()
